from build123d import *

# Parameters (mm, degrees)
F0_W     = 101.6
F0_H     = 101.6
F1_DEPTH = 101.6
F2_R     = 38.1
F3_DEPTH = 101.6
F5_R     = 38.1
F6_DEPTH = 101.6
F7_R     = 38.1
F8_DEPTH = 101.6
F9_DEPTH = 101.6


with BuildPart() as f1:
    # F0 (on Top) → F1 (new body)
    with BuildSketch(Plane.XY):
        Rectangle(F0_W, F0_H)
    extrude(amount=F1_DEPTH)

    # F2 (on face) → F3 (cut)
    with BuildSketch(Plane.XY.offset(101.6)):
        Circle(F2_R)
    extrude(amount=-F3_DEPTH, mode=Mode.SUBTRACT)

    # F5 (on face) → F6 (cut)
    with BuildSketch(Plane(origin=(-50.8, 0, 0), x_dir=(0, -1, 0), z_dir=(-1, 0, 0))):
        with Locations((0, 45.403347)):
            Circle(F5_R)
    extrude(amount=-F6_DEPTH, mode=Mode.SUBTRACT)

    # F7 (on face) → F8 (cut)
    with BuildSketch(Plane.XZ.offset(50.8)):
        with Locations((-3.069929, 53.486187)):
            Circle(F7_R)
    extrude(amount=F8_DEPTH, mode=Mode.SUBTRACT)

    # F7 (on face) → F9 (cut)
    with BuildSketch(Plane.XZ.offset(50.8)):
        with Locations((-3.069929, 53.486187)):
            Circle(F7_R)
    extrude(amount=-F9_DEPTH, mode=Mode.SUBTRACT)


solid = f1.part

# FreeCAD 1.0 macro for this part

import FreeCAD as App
import Part
import Sketcher
from FreeCAD import Vector
Q = App.Units.Quantity


def add_polygon(sketch, points):
    """Adds a closed chain of lines whose ends are joined by coincident constraints."""
    first, n = sketch.GeometryCount, len(points)
    for a, b in zip(points, points[1:] + points[:1]):
        sketch.addGeometry(Part.LineSegment(App.Vector(*a, 0), App.Vector(*b, 0)), False)
    for i in range(n):
        sketch.addConstraint(Sketcher.Constraint("Coincident", first + i, 2, first + (i + 1) % n, 1))

doc = App.newDocument("Part")
body = doc.addObject("PartDesign::Body", "Body")

# Sketch on XY plane
sketch1 = body.newObject("Sketcher::SketchObject", "Sketch")
sketch1.AttachmentSupport = (doc.getObject("XY_Plane"), [""])
sketch1.MapMode = "FlatFace"
add_polygon(sketch1, [(-50.8, 50.8), (-50.8, -50.8), (50.8, -50.8), (50.8, 50.8)])  # lines 0-3
sketch1.addConstraint([
    Sketcher.Constraint("Vertical", 0),
    Sketcher.Constraint("Horizontal", 1),
    Sketcher.Constraint("Vertical", 2),
    Sketcher.Constraint("Horizontal", 3),
    Sketcher.Constraint("Symmetric", 0, 2, 2, 2, -1, 1),
    Sketcher.Constraint("Equal", 3, 0),
    Sketcher.Constraint("DistanceX", 1, 1, 1, 2, Q("4 in")),
])
pad1 = body.newObject("PartDesign::Pad", "Pad")
pad1.Profile = sketch1
pad1.Length = Q("4 in")

# Sketch on XY plane
sketch2 = body.newObject("Sketcher::SketchObject", "Sketch001")
sketch2.AttachmentSupport = (doc.getObject("XY_Plane"), [""])
sketch2.MapMode = "FlatFace"
sketch2.AttachmentOffset = App.Placement(Vector(0, 0, 4 * 25.4), App.Rotation())
sketch2.addGeometry(Part.Circle(Vector(0, 0, 0), Vector(0, 0, 1), 38.1), False)
sketch2.addConstraint([
    Sketcher.Constraint("Coincident", 0, 3, -1, 1),
    Sketcher.Constraint("Diameter", 0, Q("3 in")),
])
pocket1 = body.newObject("PartDesign::Pocket", "Pocket")
pocket1.Profile = sketch2
pocket1.Length = Q("4 in")

# Sketch on YZ plane
sketch3 = body.newObject("Sketcher::SketchObject", "Sketch002")
sketch3.AttachmentSupport = (doc.getObject("YZ_Plane"), [""])
sketch3.MapMode = "FlatFace"
sketch3.AttachmentOffset = App.Placement(Vector(0, 0, -2 * 25.4), App.Rotation())
sketch3.addGeometry(Part.Circle(Vector(0, 45.403347, 0), Vector(0, 0, 1), 38.1), False)
sketch3.addConstraint([
    Sketcher.Constraint("PointOnObject", 0, 3, -2),
    Sketcher.Constraint("Diameter", 0, Q("3 in")),
    Sketcher.Constraint("DistanceY", -1, 1, 0, 3, 45.403347),
])
pocket2 = body.newObject("PartDesign::Pocket", "Pocket001")
pocket2.Profile = sketch3
pocket2.Length = Q("4 in")
pocket2.Reversed = True

# Sketch on XZ plane
sketch4 = body.newObject("Sketcher::SketchObject", "Sketch003")
sketch4.AttachmentSupport = (doc.getObject("XZ_Plane"), [""])
sketch4.MapMode = "FlatFace"
sketch4.AttachmentOffset = App.Placement(Vector(0, 0, 2 * 25.4), App.Rotation())
sketch4.addGeometry(Part.Circle(Vector(-3.069929, 53.486187, 0), Vector(0, 0, 1), 38.1), False)
sketch4.addConstraint([
    Sketcher.Constraint("Diameter", 0, Q("3 in")),
    Sketcher.Constraint("DistanceX", 0, 3, -1, 1, 3.069929),
    Sketcher.Constraint("DistanceY", -1, 1, 0, 3, 53.486187),
])
pocket3 = body.newObject("PartDesign::Pocket", "Pocket002")
pocket3.Profile = sketch4
pocket3.Length = Q("4 in")
pocket3.Reversed = True

# Sketch on XZ plane
sketch5 = body.newObject("Sketcher::SketchObject", "Sketch004")
sketch5.AttachmentSupport = (doc.getObject("XZ_Plane"), [""])
sketch5.MapMode = "FlatFace"
sketch5.AttachmentOffset = App.Placement(Vector(0, 0, 2 * 25.4), App.Rotation())
sketch5.addGeometry(Part.Circle(Vector(-3.069929, 53.486187, 0), Vector(0, 0, 1), 38.1), False)
sketch5.addConstraint([
    Sketcher.Constraint("Diameter", 0, Q("3 in")),
    Sketcher.Constraint("DistanceX", 0, 3, -1, 1, 3.069929),
    Sketcher.Constraint("DistanceY", -1, 1, 0, 3, 53.486187),
])
pocket4 = body.newObject("PartDesign::Pocket", "Pocket003")
pocket4.Profile = sketch5
pocket4.Length = Q("4 in")

doc.recompute()
